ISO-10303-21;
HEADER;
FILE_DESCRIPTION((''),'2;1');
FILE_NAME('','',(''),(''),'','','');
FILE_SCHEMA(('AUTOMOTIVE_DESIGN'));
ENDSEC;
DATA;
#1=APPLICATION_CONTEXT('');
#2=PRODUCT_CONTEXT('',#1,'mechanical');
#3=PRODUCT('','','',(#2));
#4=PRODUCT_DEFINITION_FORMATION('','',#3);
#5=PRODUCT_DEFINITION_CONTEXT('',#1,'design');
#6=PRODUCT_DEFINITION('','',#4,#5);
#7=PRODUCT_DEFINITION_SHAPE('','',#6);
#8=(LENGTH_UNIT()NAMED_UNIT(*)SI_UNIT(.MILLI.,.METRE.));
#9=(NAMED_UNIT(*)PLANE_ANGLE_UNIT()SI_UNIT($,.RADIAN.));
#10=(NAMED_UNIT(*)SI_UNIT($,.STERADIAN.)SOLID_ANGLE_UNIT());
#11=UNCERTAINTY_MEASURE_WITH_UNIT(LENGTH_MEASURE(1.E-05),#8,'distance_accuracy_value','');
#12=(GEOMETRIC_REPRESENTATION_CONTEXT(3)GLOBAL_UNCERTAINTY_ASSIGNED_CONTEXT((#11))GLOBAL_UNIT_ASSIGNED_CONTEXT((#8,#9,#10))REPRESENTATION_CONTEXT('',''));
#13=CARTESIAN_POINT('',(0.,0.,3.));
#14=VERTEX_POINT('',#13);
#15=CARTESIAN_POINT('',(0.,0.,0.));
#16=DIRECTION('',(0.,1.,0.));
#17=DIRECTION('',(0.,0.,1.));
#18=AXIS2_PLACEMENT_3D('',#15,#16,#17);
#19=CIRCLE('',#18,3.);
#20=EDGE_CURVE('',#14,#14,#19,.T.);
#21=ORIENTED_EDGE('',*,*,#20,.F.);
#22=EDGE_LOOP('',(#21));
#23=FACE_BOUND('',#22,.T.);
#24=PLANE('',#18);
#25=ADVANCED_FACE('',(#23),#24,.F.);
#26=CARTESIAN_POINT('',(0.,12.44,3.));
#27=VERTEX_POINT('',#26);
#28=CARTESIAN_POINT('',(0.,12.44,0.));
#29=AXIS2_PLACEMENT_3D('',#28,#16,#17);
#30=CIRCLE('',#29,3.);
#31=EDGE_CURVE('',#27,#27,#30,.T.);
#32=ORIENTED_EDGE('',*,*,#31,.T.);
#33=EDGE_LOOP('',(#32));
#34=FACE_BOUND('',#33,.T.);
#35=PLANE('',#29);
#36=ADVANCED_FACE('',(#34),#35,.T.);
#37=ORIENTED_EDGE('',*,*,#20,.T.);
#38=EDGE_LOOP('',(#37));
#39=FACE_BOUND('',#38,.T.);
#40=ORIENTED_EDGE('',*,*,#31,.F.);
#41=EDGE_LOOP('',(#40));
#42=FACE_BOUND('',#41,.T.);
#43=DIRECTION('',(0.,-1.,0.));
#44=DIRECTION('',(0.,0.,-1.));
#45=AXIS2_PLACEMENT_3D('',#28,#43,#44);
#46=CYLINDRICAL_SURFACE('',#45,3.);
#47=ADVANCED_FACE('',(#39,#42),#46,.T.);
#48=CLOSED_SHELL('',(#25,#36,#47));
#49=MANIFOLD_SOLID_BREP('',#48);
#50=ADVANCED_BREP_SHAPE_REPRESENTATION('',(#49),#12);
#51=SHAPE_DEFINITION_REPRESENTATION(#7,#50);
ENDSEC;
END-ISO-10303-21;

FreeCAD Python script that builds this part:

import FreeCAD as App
import Part
import Sketcher

doc = App.newDocument("Part")
body = doc.addObject("PartDesign::Body", "Body")

sketch1 = body.newObject("Sketcher::SketchObject", "Sketch")
sketch1.AttachmentSupport = (doc.getObject("XZ_Plane"), [""])
sketch1.MapMode = "FlatFace"
sketch1.addGeometry(Part.Circle(App.Vector(0, 0, 0), App.Vector(0, 0, 1), 3), False)
sketch1.addConstraint(Sketcher.Constraint("Coincident", 0, 3, -1, 1))
sketch1.addConstraint(Sketcher.Constraint("Diameter", 0, 6.0))
pad1 = body.newObject("PartDesign::Pad", "Pad")
pad1.Profile = sketch1
pad1.Length = 12.44
pad1.Reversed = True

doc.recompute()
